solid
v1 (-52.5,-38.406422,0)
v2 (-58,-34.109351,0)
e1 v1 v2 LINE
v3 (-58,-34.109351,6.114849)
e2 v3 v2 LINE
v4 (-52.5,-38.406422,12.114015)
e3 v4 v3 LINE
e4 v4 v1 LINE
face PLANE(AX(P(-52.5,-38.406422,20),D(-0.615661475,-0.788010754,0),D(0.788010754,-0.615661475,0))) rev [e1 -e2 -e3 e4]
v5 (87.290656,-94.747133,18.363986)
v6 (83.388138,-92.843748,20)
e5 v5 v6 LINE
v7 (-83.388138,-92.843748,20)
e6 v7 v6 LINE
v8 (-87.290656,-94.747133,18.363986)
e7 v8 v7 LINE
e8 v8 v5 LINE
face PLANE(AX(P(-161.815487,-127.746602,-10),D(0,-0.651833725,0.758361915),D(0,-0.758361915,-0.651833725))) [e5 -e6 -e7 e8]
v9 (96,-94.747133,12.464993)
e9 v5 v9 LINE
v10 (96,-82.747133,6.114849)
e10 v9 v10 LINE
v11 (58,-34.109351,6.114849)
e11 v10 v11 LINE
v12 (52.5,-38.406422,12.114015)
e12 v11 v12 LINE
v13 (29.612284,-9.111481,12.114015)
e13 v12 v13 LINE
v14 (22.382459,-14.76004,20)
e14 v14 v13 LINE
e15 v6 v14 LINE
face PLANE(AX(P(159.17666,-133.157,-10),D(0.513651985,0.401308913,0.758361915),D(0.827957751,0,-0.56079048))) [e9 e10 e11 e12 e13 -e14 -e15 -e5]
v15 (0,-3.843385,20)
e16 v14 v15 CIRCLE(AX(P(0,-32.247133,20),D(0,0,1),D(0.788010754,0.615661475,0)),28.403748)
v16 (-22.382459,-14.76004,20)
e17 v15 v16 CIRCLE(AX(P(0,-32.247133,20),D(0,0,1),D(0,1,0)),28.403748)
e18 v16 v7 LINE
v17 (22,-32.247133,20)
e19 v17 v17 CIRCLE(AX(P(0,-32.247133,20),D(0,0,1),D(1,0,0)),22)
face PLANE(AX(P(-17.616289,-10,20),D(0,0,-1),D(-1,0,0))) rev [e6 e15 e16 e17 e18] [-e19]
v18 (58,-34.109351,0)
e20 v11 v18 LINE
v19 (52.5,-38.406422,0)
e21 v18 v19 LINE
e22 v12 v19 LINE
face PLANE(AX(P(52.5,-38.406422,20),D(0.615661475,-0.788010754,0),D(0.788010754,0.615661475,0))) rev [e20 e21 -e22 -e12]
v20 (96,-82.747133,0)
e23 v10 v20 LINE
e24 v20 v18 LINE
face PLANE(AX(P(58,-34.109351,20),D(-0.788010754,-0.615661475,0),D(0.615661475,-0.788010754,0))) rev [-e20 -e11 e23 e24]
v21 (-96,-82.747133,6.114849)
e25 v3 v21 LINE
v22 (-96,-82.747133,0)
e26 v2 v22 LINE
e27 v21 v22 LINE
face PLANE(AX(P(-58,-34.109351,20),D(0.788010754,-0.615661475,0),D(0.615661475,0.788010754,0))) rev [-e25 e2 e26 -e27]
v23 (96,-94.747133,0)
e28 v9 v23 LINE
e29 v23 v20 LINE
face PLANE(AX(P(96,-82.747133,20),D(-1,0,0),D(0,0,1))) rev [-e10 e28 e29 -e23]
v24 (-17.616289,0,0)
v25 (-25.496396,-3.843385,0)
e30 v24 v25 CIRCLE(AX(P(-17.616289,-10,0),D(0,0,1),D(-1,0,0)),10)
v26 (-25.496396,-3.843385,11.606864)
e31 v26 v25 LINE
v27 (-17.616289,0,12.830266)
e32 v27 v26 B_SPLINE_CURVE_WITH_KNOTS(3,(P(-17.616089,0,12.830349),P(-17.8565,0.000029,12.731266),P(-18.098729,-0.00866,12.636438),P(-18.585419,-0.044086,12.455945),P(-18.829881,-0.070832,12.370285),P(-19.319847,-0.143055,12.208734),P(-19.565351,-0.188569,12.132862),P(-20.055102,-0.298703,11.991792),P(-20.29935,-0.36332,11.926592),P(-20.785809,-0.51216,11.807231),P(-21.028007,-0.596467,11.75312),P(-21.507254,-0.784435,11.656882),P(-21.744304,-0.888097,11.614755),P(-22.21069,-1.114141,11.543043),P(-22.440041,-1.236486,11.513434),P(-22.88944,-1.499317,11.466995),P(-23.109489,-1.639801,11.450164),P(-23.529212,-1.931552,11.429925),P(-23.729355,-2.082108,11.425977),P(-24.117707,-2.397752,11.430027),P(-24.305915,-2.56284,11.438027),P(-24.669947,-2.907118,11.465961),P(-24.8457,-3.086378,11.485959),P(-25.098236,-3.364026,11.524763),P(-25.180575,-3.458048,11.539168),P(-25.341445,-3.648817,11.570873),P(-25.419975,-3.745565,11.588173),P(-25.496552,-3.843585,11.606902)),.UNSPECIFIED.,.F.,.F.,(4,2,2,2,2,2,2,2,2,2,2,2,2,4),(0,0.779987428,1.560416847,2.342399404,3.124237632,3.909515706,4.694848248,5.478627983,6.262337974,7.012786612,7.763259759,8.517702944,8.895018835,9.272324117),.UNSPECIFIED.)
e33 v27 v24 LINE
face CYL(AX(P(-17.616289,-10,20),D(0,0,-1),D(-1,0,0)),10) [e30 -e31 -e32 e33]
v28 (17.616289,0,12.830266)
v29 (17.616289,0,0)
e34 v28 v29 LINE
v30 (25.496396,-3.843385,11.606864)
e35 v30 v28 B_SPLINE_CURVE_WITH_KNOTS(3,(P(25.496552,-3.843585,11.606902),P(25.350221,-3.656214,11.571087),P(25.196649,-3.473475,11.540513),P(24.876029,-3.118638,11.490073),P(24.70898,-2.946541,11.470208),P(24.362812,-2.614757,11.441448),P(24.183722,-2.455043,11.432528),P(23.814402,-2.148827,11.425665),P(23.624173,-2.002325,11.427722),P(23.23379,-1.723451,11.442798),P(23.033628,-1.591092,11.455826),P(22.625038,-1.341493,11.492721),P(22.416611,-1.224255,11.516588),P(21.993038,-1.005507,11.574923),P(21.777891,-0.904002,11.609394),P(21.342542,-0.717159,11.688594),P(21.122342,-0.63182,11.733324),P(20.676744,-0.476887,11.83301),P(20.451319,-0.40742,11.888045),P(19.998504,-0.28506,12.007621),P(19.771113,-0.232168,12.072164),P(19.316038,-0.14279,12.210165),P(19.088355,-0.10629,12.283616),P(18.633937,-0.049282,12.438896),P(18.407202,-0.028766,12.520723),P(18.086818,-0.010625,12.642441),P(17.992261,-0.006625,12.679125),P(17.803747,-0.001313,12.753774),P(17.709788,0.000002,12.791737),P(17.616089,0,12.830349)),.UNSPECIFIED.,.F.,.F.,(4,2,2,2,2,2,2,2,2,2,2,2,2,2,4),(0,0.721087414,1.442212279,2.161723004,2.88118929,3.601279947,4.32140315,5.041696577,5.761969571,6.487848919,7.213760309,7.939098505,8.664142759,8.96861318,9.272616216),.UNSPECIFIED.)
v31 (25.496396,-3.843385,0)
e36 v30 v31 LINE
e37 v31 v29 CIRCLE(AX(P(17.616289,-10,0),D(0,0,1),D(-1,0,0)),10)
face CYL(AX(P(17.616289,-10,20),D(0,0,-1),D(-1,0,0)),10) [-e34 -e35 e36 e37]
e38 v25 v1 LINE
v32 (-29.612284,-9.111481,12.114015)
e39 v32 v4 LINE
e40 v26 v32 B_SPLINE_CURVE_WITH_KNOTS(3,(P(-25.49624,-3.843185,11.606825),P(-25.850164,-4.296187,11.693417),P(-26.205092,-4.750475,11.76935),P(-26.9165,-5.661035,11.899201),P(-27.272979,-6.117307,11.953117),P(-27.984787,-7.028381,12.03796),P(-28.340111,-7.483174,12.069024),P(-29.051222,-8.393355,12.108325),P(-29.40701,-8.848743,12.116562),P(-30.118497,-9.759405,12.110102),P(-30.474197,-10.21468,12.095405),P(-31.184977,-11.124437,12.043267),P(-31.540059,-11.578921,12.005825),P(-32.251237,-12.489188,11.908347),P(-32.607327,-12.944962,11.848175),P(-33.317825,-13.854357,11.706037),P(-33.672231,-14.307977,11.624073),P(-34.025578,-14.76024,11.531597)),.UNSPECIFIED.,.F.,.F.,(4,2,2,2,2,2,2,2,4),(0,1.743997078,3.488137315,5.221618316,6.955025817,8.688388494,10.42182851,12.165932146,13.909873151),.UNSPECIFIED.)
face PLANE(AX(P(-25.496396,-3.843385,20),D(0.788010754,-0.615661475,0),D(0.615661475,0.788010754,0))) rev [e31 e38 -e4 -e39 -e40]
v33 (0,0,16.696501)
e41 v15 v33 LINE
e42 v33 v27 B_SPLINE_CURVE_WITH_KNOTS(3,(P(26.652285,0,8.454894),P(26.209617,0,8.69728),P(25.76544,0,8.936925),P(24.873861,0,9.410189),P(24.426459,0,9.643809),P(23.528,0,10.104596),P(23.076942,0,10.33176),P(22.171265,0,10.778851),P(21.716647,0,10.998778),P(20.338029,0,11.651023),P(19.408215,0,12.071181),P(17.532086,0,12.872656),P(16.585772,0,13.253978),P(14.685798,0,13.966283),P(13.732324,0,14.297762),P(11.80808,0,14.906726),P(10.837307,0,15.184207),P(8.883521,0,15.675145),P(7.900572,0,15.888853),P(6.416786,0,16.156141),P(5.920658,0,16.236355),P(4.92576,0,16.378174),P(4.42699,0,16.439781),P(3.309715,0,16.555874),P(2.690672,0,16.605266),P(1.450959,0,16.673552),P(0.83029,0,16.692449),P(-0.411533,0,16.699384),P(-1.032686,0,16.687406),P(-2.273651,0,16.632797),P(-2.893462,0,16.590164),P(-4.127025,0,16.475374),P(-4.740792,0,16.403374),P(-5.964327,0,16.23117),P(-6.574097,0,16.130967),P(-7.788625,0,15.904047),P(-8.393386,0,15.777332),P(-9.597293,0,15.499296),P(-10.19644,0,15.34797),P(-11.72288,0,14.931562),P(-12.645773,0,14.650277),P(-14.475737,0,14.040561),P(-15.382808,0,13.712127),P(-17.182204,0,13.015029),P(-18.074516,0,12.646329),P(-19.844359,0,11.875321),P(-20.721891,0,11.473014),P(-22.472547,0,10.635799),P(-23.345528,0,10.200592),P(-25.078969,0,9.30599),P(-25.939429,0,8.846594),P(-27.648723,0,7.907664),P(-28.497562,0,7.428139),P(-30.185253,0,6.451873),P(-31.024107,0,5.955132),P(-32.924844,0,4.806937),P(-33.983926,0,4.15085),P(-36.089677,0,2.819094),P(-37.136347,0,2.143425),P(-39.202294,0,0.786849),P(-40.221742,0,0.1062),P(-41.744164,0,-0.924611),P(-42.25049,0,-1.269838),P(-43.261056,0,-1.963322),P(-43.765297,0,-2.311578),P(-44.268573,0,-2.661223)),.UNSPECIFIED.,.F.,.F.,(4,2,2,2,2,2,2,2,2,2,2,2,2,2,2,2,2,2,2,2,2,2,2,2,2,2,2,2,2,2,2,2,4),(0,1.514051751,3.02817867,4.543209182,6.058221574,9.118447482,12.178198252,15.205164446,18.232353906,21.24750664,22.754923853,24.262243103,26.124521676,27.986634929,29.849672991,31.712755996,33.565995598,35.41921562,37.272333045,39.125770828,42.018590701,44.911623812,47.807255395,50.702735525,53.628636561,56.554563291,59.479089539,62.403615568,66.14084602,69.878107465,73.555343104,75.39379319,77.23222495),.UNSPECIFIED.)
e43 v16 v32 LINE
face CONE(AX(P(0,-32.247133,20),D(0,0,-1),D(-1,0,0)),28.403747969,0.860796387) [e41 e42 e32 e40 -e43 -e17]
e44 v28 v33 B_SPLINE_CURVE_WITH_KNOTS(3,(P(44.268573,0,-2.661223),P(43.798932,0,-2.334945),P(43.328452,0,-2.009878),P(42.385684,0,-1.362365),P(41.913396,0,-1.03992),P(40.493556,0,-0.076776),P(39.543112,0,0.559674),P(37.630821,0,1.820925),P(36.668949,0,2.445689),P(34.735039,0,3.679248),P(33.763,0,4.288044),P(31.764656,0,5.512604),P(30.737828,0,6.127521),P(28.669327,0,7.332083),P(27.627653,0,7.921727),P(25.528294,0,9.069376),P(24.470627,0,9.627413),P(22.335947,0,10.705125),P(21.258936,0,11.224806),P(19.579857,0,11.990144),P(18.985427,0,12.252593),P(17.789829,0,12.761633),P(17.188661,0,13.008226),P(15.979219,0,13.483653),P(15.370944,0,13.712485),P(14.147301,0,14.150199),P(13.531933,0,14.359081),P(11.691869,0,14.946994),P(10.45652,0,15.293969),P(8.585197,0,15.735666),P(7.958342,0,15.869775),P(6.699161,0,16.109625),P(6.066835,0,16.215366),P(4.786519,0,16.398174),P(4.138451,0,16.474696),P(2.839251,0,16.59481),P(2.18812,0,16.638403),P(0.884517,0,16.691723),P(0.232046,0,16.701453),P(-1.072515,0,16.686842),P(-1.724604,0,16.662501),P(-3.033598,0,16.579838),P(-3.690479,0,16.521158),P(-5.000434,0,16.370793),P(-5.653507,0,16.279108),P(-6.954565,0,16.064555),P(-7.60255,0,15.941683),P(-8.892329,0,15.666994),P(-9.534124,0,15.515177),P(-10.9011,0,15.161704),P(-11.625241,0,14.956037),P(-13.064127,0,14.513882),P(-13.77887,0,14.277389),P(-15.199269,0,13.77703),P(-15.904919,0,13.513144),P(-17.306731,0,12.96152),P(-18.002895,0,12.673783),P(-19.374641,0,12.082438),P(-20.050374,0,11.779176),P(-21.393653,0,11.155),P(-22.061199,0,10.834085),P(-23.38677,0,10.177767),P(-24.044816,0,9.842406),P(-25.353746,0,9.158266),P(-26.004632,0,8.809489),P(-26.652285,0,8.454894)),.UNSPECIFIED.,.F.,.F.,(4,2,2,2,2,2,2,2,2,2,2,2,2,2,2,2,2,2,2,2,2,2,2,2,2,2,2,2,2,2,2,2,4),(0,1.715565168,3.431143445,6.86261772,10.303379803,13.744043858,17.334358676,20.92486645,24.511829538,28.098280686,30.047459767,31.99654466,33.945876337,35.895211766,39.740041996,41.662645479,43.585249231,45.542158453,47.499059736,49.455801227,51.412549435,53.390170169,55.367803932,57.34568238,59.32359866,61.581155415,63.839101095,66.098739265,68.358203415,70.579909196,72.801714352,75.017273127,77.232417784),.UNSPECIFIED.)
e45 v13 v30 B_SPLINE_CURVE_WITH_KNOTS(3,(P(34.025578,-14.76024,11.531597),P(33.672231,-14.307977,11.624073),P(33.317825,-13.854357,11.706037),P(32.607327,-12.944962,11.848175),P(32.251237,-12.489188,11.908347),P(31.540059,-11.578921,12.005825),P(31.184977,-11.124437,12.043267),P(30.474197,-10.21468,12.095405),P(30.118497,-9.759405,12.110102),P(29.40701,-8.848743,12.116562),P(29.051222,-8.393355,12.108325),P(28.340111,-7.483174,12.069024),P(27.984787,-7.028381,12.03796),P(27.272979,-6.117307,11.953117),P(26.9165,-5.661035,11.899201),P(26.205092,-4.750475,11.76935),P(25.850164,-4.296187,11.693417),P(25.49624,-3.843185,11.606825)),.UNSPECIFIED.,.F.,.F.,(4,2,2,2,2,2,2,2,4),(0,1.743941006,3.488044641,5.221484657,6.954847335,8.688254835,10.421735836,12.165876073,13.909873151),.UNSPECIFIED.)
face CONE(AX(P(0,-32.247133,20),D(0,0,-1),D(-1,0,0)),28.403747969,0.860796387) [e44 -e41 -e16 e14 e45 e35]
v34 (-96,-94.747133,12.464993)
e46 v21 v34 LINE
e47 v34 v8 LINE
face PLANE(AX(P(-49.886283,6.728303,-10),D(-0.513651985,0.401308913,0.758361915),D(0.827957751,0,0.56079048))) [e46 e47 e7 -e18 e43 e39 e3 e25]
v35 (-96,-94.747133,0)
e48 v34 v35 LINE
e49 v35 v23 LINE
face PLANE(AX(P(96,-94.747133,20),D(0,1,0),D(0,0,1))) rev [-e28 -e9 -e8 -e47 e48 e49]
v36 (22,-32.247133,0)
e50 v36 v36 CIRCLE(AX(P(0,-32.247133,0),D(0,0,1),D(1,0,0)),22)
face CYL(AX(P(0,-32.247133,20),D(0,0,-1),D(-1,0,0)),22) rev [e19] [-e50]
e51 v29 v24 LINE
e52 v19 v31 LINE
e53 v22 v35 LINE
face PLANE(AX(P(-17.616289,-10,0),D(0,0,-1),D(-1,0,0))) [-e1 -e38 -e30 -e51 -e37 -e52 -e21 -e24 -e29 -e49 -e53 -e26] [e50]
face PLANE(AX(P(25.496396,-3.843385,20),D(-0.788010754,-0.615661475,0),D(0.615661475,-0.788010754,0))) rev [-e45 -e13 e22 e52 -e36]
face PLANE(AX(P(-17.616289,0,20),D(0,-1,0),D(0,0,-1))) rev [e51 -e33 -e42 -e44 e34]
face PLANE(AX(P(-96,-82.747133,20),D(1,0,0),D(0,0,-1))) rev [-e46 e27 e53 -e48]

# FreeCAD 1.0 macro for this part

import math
import FreeCAD as App
import Part
import Sketcher
from FreeCAD import Vector
Q = App.Units.Quantity


def add_polygon(sketch, points):
    """Adds a closed chain of lines whose ends are joined by coincident constraints."""
    first, n = sketch.GeometryCount, len(points)
    for a, b in zip(points, points[1:] + points[:1]):
        sketch.addGeometry(Part.LineSegment(App.Vector(*a, 0), App.Vector(*b, 0)), False)
    for i in range(n):
        sketch.addConstraint(Sketcher.Constraint("Coincident", first + i, 2, first + (i + 1) % n, 1))

doc = App.newDocument("Part")
body = doc.addObject("PartDesign::Body", "Body")

# Sketch on XY plane
sketch1 = body.newObject("Sketcher::SketchObject", "Sketch")
sketch1.AttachmentSupport = (doc.getObject("XY_Plane"), [""])
sketch1.MapMode = "FlatFace"
sketch1.addGeometry(Part.LineSegment(Vector(18, 0, 0), Vector(-18, 0, 0)), False)
sketch1.addGeometry(Part.ArcOfCircle(Part.Circle(Vector(-18, -10, 0), Vector(0, 0, 1), 10), math.radians(90), math.radians(142)), False)
sketch1.addGeometry(Part.LineSegment(Vector(-25, -4, 0), Vector(-52, -38, 0)), False)
sketch1.addGeometry(Part.LineSegment(Vector(-52, -38, 0), Vector(-58, -34, 0)), False)
sketch1.addGeometry(Part.LineSegment(Vector(-58, -34, 0), Vector(-96, -83, 0)), False)
sketch1.addGeometry(Part.LineSegment(Vector(-96, -83, 0), Vector(-96, -95, 0)), False)
sketch1.addGeometry(Part.LineSegment(Vector(-96, -95, 0), Vector(96, -95, 0)), False)
sketch1.addGeometry(Part.LineSegment(Vector(96, -95, 0), Vector(96, -83, 0)), False)
sketch1.addGeometry(Part.LineSegment(Vector(96, -83, 0), Vector(58, -34, 0)), False)
sketch1.addGeometry(Part.LineSegment(Vector(58, -34, 0), Vector(52, -38, 0)), False)
sketch1.addGeometry(Part.LineSegment(Vector(52, -38, 0), Vector(25, -4, 0)), False)
sketch1.addGeometry(Part.ArcOfCircle(Part.Circle(Vector(18, -10, 0), Vector(0, 0, 1), 10), math.radians(38), math.radians(90)), False)
sketch1.addGeometry(Part.Circle(Vector(0, -32, 0), Vector(0, 0, 1), 22), False)
sketch1.addConstraint(Sketcher.Constraint("Tangent", 0, 2, 1, 1))
sketch1.addConstraint(Sketcher.Constraint("Tangent", 1, 2, 2, 1))
sketch1.addConstraint(Sketcher.Constraint("Coincident", 2, 2, 3, 1))
sketch1.addConstraint(Sketcher.Constraint("Coincident", 3, 2, 4, 1))
sketch1.addConstraint(Sketcher.Constraint("Coincident", 4, 2, 5, 1))
sketch1.addConstraint(Sketcher.Constraint("Coincident", 5, 2, 6, 1))
sketch1.addConstraint(Sketcher.Constraint("Coincident", 6, 2, 7, 1))
sketch1.addConstraint(Sketcher.Constraint("Coincident", 7, 2, 8, 1))
sketch1.addConstraint(Sketcher.Constraint("Coincident", 8, 2, 9, 1))
sketch1.addConstraint(Sketcher.Constraint("Coincident", 9, 2, 10, 1))
sketch1.addConstraint(Sketcher.Constraint("Tangent", 10, 2, 11, 1))
sketch1.addConstraint(Sketcher.Constraint("Tangent", 11, 2, 0, 1))
sketch1.addConstraint(Sketcher.Constraint("Horizontal", 0))
sketch1.addConstraint(Sketcher.Constraint("Vertical", 5))
sketch1.addConstraint(Sketcher.Constraint("Horizontal", 6))
sketch1.addConstraint(Sketcher.Constraint("Vertical", 7))
sketch1.addConstraint(Sketcher.Constraint("Equal", 1, 11))
sketch1.addConstraint(Sketcher.Constraint("Symmetric", 0, 2, 11, 2, -1, 1))
sketch1.addConstraint(Sketcher.Constraint("Symmetric", 4, 2, 7, 2, -2))
sketch1.addConstraint(Sketcher.Constraint("Symmetric", 3, 2, 8, 2, -2))
sketch1.addConstraint(Sketcher.Constraint("Symmetric", 2, 2, 9, 2, -2))
sketch1.addConstraint(Sketcher.Constraint("PointOnObject", 12, 3, -2))
sketch1.addConstraint(Sketcher.Constraint("Perpendicular", 2, 3))
sketch1.addConstraint(Sketcher.Constraint("Perpendicular", 3, 4))
sketch1.addConstraint(Sketcher.Constraint("Diameter", 12, 44.0))
sketch1.addConstraint(Sketcher.Constraint("Radius", 1, 10.0))
sketch1.addConstraint(Sketcher.Constraint("DistanceX", 6, 1, 6, 2, 192.0))
sketch1.addConstraint(Sketcher.Constraint("DistanceY", 5, 2, 5, 1, 12.0))
sketch1.addConstraint(Sketcher.Constraint("Angle", 2, Q("-128 deg")))
sketch1.addConstraint(Sketcher.Constraint("DistanceX", 3, 2, -1, 1, 58.0))
sketch1.addConstraint(Sketcher.Constraint("DistanceX", 2, 2, -1, 1, 52.5))
sketch1.addConstraint(Sketcher.Constraint("DistanceY", 4, 2, 12, 3, 50.5))
sketch1.addConstraint(Sketcher.Constraint("DistanceX", 0, 2, 0, 1, 35.232577))
pad1 = body.newObject("PartDesign::Pad", "Pad")
pad1.Profile = sketch1
pad1.Length = 20

# Sketch on YZ plane
sketch2 = body.newObject("Sketcher::SketchObject", "Sketch001")
sketch2.AttachmentSupport = (doc.getObject("YZ_Plane"), [""])
sketch2.MapMode = "FlatFace"
add_polygon(sketch2, [(31, 20), (-4, 20), (31, -10)])  # lines 0-2
sketch2.addConstraint(Sketcher.Constraint("Horizontal", 0))
sketch2.addConstraint(Sketcher.Constraint("Vertical", 2))
sketch2.addConstraint(Sketcher.Constraint("DistanceY", 2, 1, 2, 2, 30.0))
sketch2.addConstraint(Sketcher.Constraint("DistanceY", -1, 1, 0, 2, 20.0))
sketch2.addConstraint(Sketcher.Constraint("Angle", 1, Q("-40.68 deg")))
sketch2.addConstraint(Sketcher.Constraint("DistanceX", -1, 1, 1, 2, 31.059469))

# Sketch on XY plane
sketch3 = body.newObject("Sketcher::SketchObject", "Sketch002")
sketch3.AttachmentSupport = (doc.getObject("XY_Plane"), [""])
sketch3.MapMode = "FlatFace"
sketch3.AttachmentOffset = App.Placement(Vector(0, 0, 20), App.Rotation())
sketch3.addGeometry(Part.LineSegment(Vector(24, -14, 0), Vector(87, -95, 0)), False)
sketch3.addGeometry(Part.LineSegment(Vector(87, -95, 0), Vector(-87, -95, 0)), False)
sketch3.addGeometry(Part.LineSegment(Vector(-87, -95, 0), Vector(-24, -14, 0)), False)
sketch3.addGeometry(Part.ArcOfCircle(Part.Circle(Vector(0, -32, 0), Vector(0, 0, 1), 30), math.radians(38), math.radians(142)), False)
sketch3.addConstraint(Sketcher.Constraint("Coincident", 0, 2, 1, 1))
sketch3.addConstraint(Sketcher.Constraint("Coincident", 1, 2, 2, 1))
sketch3.addConstraint(Sketcher.Constraint("Tangent", 2, 2, 3, 2))
sketch3.addConstraint(Sketcher.Constraint("Tangent", 3, 1, 0, 1))
sketch3.addConstraint(Sketcher.Constraint("Horizontal", 1))
sketch3.addConstraint(Sketcher.Constraint("Symmetric", 2, 2, 3, 1, -2))
sketch3.addConstraint(Sketcher.Constraint("Angle", 0, Q("-52 deg")))
sketch3.addConstraint(Sketcher.Constraint("DistanceY", 0, 2, 3, 3, 62.5))
sketch3.addConstraint(Sketcher.Constraint("Radius", 3, 30.307133))
sketch3.addConstraint(Sketcher.Constraint("DistanceY", 2, 2, -1, 1, 13.588199))
doc.recompute()

subtractivepipe = body.newObject("PartDesign::SubtractivePipe", "SubtractivePipe")
subtractivepipe.Profile = sketch2
subtractivepipe.Spine = (sketch3, ["Edge1", "Edge2", "Edge3", "Edge4"])
subtractivepipe.Transition = "Right corner"

doc.recompute()
